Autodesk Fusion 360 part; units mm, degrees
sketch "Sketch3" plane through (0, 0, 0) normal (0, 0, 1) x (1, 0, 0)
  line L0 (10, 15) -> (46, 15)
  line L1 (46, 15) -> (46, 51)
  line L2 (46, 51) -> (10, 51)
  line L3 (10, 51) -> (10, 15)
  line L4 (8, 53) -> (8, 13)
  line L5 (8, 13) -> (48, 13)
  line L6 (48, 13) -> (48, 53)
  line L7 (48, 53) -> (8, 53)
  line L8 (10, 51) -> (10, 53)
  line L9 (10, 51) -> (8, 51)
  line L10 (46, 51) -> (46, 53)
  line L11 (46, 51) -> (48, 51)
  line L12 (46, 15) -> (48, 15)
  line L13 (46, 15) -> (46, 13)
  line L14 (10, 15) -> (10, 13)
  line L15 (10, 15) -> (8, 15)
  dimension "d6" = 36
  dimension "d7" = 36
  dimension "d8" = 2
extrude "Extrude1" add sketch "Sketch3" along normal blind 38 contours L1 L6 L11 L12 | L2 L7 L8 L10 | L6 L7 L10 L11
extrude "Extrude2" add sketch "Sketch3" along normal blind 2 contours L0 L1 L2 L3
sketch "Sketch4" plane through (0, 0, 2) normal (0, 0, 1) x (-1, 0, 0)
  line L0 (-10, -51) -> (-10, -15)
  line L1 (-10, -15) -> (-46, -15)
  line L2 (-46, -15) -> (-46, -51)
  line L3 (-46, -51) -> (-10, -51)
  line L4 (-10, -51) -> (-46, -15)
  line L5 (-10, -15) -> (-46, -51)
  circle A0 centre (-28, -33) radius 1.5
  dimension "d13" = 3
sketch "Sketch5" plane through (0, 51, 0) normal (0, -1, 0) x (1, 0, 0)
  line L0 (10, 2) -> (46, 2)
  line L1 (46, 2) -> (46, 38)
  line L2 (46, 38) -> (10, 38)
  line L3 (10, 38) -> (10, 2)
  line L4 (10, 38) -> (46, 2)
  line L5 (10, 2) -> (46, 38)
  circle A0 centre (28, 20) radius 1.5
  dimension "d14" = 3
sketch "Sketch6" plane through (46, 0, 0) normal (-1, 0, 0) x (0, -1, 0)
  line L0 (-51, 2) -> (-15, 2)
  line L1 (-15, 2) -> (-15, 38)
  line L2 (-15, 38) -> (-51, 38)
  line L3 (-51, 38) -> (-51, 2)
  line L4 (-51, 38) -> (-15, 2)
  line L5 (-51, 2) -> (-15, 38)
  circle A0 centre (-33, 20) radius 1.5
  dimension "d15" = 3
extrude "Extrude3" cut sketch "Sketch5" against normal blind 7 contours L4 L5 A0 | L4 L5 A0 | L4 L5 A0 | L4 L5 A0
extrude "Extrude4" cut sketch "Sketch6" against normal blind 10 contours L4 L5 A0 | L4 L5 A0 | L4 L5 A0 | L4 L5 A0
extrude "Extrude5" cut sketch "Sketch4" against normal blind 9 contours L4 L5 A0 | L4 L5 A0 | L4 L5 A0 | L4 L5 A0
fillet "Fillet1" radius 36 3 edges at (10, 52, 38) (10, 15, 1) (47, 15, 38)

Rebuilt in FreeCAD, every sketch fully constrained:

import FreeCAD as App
import Part
import Sketcher
from FreeCAD import Vector
Q = App.Units.Quantity


def edges_at(feature, points):
    """Names of the edges that pass closest to the given points."""
    edges = feature.Shape.Edges
    near = lambda p: min(range(len(edges)), key=lambda i: edges[i].distToShape(Part.Vertex(*p))[0])
    return sorted({f"Edge{near(p) + 1}" for p in points})


def add_polygon(sketch, points):
    """Adds a closed chain of lines whose ends are joined by coincident constraints."""
    first, n = sketch.GeometryCount, len(points)
    for a, b in zip(points, points[1:] + points[:1]):
        sketch.addGeometry(Part.LineSegment(App.Vector(*a, 0), App.Vector(*b, 0)), False)
    for i in range(n):
        sketch.addConstraint(Sketcher.Constraint("Coincident", first + i, 2, first + (i + 1) % n, 1))

doc = App.newDocument("Part")
body = doc.addObject("PartDesign::Body", "Body")

# Sketch on XY plane
sketch1 = body.newObject("Sketcher::SketchObject", "Sketch")
sketch1.AttachmentSupport = (doc.getObject("XY_Plane"), [""])
sketch1.MapMode = "FlatFace"
add_polygon(sketch1, [(46, 51), (46, 15), (48, 15), (48, 53), (10, 53), (10, 51)])  # lines 0-5
sketch1.addConstraint([
    Sketcher.Constraint("Vertical", 0),
    Sketcher.Constraint("Horizontal", 1),
    Sketcher.Constraint("Vertical", 2),
    Sketcher.Constraint("Horizontal", 3),
    Sketcher.Constraint("Vertical", 4),
    Sketcher.Constraint("Horizontal", 5),
    Sketcher.Constraint("Equal", 5, 0),
    Sketcher.Constraint("Equal", 3, 2),
    Sketcher.Constraint("DistanceX", 1, 1, 1, 2, Q("2 mm")),
    Sketcher.Constraint("DistanceX", 5, 1, 5, 2, Q("36 mm")),
    Sketcher.Constraint("DistanceX", -1, 1, 0, 2, Q("46 mm")),
    Sketcher.Constraint("DistanceY", -1, 1, 0, 2, Q("15 mm")),
])
pad1 = body.newObject("PartDesign::Pad", "Pad")
pad1.Profile = sketch1
pad1.Length = 38

# Sketch on XY plane
sketch2 = body.newObject("Sketcher::SketchObject", "Sketch001")
sketch2.AttachmentSupport = (doc.getObject("XY_Plane"), [""])
sketch2.MapMode = "FlatFace"
add_polygon(sketch2, [(10, 51), (10, 15), (46, 15), (46, 51)])  # lines 0-3
sketch2.addConstraint([
    Sketcher.Constraint("Vertical", 0),
    Sketcher.Constraint("Horizontal", 1),
    Sketcher.Constraint("Vertical", 2),
    Sketcher.Constraint("Horizontal", 3),
    Sketcher.Constraint("Equal", 3, 0),
    Sketcher.Constraint("DistanceX", 1, 1, 1, 2, Q("36 mm")),
    Sketcher.Constraint("DistanceX", -1, 1, 0, 2, Q("10 mm")),
    Sketcher.Constraint("DistanceY", -1, 1, 0, 2, Q("15 mm")),
])
pad2 = body.newObject("PartDesign::Pad", "Pad001")
pad2.Profile = sketch2
pad2.Length = 2

# Sketch on XZ plane
sketch3 = body.newObject("Sketcher::SketchObject", "Sketch002")
sketch3.AttachmentSupport = (doc.getObject("XZ_Plane"), [""])
sketch3.MapMode = "FlatFace"
sketch3.AttachmentOffset = App.Placement(Vector(0, 0, -51), App.Rotation())
sketch3.addGeometry(Part.Circle(Vector(28, 20, 0), Vector(0, 0, 1), 1.5), False)
sketch3.addConstraint([
    Sketcher.Constraint("Diameter", 0, Q("3 mm")),
    Sketcher.Constraint("DistanceX", -1, 1, 0, 3, Q("28 mm")),
    Sketcher.Constraint("DistanceY", -1, 1, 0, 3, Q("20 mm")),
])
pocket1 = body.newObject("PartDesign::Pocket", "Pocket")
pocket1.Profile = sketch3
pocket1.Length = 7

# Sketch on YZ plane
sketch4 = body.newObject("Sketcher::SketchObject", "Sketch003")
sketch4.AttachmentSupport = (doc.getObject("YZ_Plane"), [""])
sketch4.MapMode = "FlatFace"
sketch4.AttachmentOffset = App.Placement(Vector(0, 0, 46), App.Rotation())
sketch4.addGeometry(Part.Circle(Vector(33, 20, 0), Vector(0, 0, 1), 1.5), False)
sketch4.addConstraint([
    Sketcher.Constraint("Diameter", 0, Q("3 mm")),
    Sketcher.Constraint("DistanceX", -1, 1, 0, 3, Q("33 mm")),
    Sketcher.Constraint("DistanceY", -1, 1, 0, 3, Q("20 mm")),
])
pocket2 = body.newObject("PartDesign::Pocket", "Pocket001")
pocket2.Profile = sketch4
pocket2.Length = 10
pocket2.Reversed = True

# Sketch on XY plane
sketch5 = body.newObject("Sketcher::SketchObject", "Sketch004")
sketch5.AttachmentSupport = (doc.getObject("XY_Plane"), [""])
sketch5.MapMode = "FlatFace"
sketch5.AttachmentOffset = App.Placement(Vector(0, 0, 2), App.Rotation())
sketch5.addGeometry(Part.Circle(Vector(28, 33, 0), Vector(0, 0, 1), 1.5), False)
sketch5.addConstraint([
    Sketcher.Constraint("Diameter", 0, Q("3 mm")),
    Sketcher.Constraint("DistanceX", -1, 1, 0, 3, Q("28 mm")),
    Sketcher.Constraint("DistanceY", -1, 1, 0, 3, Q("33 mm")),
])
pocket3 = body.newObject("PartDesign::Pocket", "Pocket002")
pocket3.Profile = sketch5
pocket3.Length = 9
doc.recompute()

fillet = body.newObject("PartDesign::Fillet", "Fillet")
fillet.Base = (pocket3, edges_at(pocket3, [(10, 52, 38), (10, 15, 1), (47, 15, 38)]))
fillet.Radius = 36

doc.recompute()
